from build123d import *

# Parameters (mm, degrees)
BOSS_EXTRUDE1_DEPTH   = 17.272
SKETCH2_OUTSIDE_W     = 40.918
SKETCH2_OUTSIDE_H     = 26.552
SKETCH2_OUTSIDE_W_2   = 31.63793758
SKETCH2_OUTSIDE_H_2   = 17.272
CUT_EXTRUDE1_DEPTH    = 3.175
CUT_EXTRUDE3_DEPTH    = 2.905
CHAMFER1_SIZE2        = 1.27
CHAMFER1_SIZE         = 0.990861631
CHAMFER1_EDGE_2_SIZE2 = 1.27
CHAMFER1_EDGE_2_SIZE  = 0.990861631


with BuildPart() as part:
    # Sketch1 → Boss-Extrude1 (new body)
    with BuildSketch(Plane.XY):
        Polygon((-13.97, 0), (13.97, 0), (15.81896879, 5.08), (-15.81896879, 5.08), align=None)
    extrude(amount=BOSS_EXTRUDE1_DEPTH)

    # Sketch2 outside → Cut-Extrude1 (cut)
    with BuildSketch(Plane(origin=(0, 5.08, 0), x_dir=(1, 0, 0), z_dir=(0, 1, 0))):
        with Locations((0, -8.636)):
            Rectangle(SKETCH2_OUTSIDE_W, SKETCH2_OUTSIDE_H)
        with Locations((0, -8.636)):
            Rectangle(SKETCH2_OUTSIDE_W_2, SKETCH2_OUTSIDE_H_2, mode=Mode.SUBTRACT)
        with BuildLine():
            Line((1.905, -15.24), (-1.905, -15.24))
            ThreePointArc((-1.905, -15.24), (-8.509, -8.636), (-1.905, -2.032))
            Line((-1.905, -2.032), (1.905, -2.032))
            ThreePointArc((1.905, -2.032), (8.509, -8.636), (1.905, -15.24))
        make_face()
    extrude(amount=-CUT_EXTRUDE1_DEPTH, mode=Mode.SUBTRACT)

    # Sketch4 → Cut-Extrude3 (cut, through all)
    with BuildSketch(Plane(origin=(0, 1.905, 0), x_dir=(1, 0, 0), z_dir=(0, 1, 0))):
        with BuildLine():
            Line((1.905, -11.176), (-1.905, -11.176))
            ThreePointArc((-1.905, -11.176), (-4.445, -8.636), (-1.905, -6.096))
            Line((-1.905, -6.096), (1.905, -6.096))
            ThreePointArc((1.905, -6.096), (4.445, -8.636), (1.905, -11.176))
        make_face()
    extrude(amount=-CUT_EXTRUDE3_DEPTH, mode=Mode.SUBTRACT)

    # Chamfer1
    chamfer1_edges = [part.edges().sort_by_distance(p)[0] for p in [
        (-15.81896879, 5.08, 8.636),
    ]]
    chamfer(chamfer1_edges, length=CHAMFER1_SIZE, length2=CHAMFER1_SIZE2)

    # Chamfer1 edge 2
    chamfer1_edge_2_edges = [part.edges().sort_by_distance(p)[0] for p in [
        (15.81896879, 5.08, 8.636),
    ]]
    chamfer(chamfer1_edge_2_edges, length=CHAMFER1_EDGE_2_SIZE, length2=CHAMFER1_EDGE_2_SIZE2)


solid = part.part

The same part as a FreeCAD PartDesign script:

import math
import FreeCAD as App
import Part
import Sketcher

V = App.Vector
Q = App.Units.Quantity


def edges_at(feature, points):
    """Names of the edges that pass closest to the given points."""
    edges = feature.Shape.Edges
    near = lambda p: min(range(len(edges)), key=lambda i: edges[i].distToShape(Part.Vertex(*p))[0])
    return sorted({f"Edge{near(p) + 1}" for p in points})


def add_polygon(sketch, points):
    """Adds a closed chain of lines whose ends are joined by coincident constraints."""
    first, n = sketch.GeometryCount, len(points)
    for a, b in zip(points, points[1:] + points[:1]):
        sketch.addGeometry(Part.LineSegment(App.Vector(*a, 0), App.Vector(*b, 0)), False)
    for i in range(n):
        sketch.addConstraint(Sketcher.Constraint("Coincident", first + i, 2, first + (i + 1) % n, 1))

doc = App.newDocument("Part")
body = doc.addObject("PartDesign::Body", "Body")

# Sketch on XY plane
sketch1 = body.newObject("Sketcher::SketchObject", "Sketch")
sketch1.AttachmentSupport = (doc.getObject("XY_Plane"), [""])
sketch1.MapMode = "FlatFace"
add_polygon(sketch1, [(-14, 0), (14, 0), (16, 5), (-16, 5)])  # lines 0-3
sketch1.addConstraint([
    Sketcher.Constraint("Horizontal", 0),
    Sketcher.Constraint("Horizontal", 2),
    Sketcher.Constraint("Symmetric", 0, 2, 3, 2, -1, 1),
    Sketcher.Constraint("Equal", 1, 3),
    Sketcher.Constraint("DistanceX", 0, 1, 0, 2, Q("1.1 in")),
    Sketcher.Constraint("Angle", 1, Q("70 deg")),
    Sketcher.Constraint("DistanceY", -1, 1, 1, 2, Q("0.2 in")),
])
pad1 = body.newObject("PartDesign::Pad", "Pad")
pad1.Profile = sketch1
pad1.Length = Q("0.68 in")

# Sketch on XZ plane
sketch2 = body.newObject("Sketcher::SketchObject", "Sketch001")
sketch2.AttachmentSupport = (doc.getObject("XZ_Plane"), [""])
sketch2.MapMode = "FlatFace"
sketch2.AttachmentOffset = App.Placement(V(0, 0, -0.2 * 25.4), App.Rotation())
add_polygon(sketch2, [(-20.5, -4.6), (-20.5, 21.9), (20.5, 21.9), (20.5, -4.6)])  # lines 0-3
add_polygon(sketch2, [(15.8, 17.3), (-15.8, 17.3), (-15.8, 0), (15.8, 0)])  # lines 4-7
sketch2.addGeometry(Part.LineSegment(V(-1.9, 15.2, 0), V(1.9, 15.2, 0)), False)  # 8
sketch2.addGeometry(Part.ArcOfCircle(Part.Circle(V(1.9, 8.6, 0), V(0, 0, 1), 6.6), math.radians(-90), math.radians(90)), False)  # 9
sketch2.addGeometry(Part.LineSegment(V(1.9, 2, 0), V(-1.9, 2, 0)), False)  # 10
sketch2.addGeometry(Part.ArcOfCircle(Part.Circle(V(-1.9, 8.6, 0), V(0, 0, 1), 6.6), math.radians(90), math.radians(270)), False)  # 11
sketch2.addConstraint([
    Sketcher.Constraint("Tangent", 8, 2, 9, 2),
    Sketcher.Constraint("Tangent", 9, 1, 10, 1),
    Sketcher.Constraint("Tangent", 10, 2, 11, 2),
    Sketcher.Constraint("Tangent", 11, 1, 8, 1),
    Sketcher.Constraint("Vertical", 0),
    Sketcher.Constraint("Horizontal", 1),
    Sketcher.Constraint("Vertical", 2),
    Sketcher.Constraint("Horizontal", 3),
    Sketcher.Constraint("Horizontal", 4),
    Sketcher.Constraint("Vertical", 5),
    Sketcher.Constraint("Horizontal", 6),
    Sketcher.Constraint("Vertical", 7),
    Sketcher.Constraint("Horizontal", 8),
    Sketcher.Constraint("Horizontal", 10),
    Sketcher.Constraint("Symmetric", 5, 2, 6, 2, -1, 1),
    Sketcher.Constraint("Radius", 9, Q("0.26 in")),
    Sketcher.Constraint("DistanceX", 8, 1, 8, 2, Q("0.15 in")),
    Sketcher.Constraint("DistanceY", 5, 2, 5, 1, Q("0.68 in")),
    Sketcher.Constraint("DistanceY", -1, 1, 8, 2, Q("0.6 in")),
    Sketcher.Constraint("DistanceX", -1, 1, 9, 3, Q("0.075 in")),
    Sketcher.Constraint("DistanceX", 1, 1, 1, 2, 40.918),
    Sketcher.Constraint("DistanceY", 0, 1, 0, 2, 26.552),
    Sketcher.Constraint("DistanceX", 0, 2, -1, 1, 20.459),
    Sketcher.Constraint("DistanceY", -1, 1, 0, 2, 21.912),
    Sketcher.Constraint("DistanceX", 4, 2, 4, 1, 31.637938),
])
pocket1 = body.newObject("PartDesign::Pocket", "Pocket")
pocket1.Profile = sketch2
pocket1.Length = Q("0.125 in")
pocket1.Reversed = True

# Sketch on XZ plane
sketch3 = body.newObject("Sketcher::SketchObject", "Sketch002")
sketch3.AttachmentSupport = (doc.getObject("XZ_Plane"), [""])
sketch3.MapMode = "FlatFace"
sketch3.AttachmentOffset = App.Placement(V(0, 0, -0.075 * 25.4), App.Rotation())
sketch3.addGeometry([
    Part.LineSegment(V(-1.9, 11.2, 0), V(1.9, 11.2, 0)),
    Part.ArcOfCircle(Part.Circle(V(1.9, 8.6, 0), V(0, 0, 1), 2.5), math.radians(-90), math.radians(90)),
    Part.LineSegment(V(1.9, 6.1, 0), V(-1.9, 6.1, 0)),
    Part.ArcOfCircle(Part.Circle(V(-1.9, 8.6, 0), V(0, 0, 1), 2.5), math.radians(90), math.radians(270)),
], False)
sketch3.addConstraint([
    Sketcher.Constraint("Tangent", 0, 2, 1, 2),
    Sketcher.Constraint("Tangent", 1, 1, 2, 1),
    Sketcher.Constraint("Tangent", 2, 2, 3, 2),
    Sketcher.Constraint("Tangent", 3, 1, 0, 1),
    Sketcher.Constraint("Horizontal", 0),
    Sketcher.Constraint("Horizontal", 2),
    Sketcher.Constraint("Radius", 1, Q("0.1 in")),
    Sketcher.Constraint("DistanceX", 0, 1, 0, 2, Q("0.15 in")),
    Sketcher.Constraint("DistanceY", -1, 1, 1, 3, Q("0.34 in")),
    Sketcher.Constraint("DistanceX", -1, 1, 1, 3, Q("0.075 in")),
])
pocket2 = body.newObject("PartDesign::Pocket", "Pocket001")
pocket2.Profile = sketch3
pocket2.Type = "ThroughAll"
pocket2.Reversed = True
doc.recompute()

chamfer = body.newObject("PartDesign::Chamfer", "Chamfer")
chamfer.Base = (pocket2, edges_at(pocket2, [(-15.819, 5.08, 8.636)]))
chamfer.ChamferType = "Two distances"
chamfer.Size = 0.990862
chamfer.Size2 = Q("0.05 in")
doc.recompute()

chamfer2 = body.newObject("PartDesign::Chamfer", "Chamfer001")
chamfer2.Base = (chamfer, edges_at(chamfer, [(15.819, 5.08, 8.636)]))
chamfer2.ChamferType = "Two distances"
chamfer2.Size = 0.990862
chamfer2.Size2 = Q("0.05 in")

doc.recompute()
